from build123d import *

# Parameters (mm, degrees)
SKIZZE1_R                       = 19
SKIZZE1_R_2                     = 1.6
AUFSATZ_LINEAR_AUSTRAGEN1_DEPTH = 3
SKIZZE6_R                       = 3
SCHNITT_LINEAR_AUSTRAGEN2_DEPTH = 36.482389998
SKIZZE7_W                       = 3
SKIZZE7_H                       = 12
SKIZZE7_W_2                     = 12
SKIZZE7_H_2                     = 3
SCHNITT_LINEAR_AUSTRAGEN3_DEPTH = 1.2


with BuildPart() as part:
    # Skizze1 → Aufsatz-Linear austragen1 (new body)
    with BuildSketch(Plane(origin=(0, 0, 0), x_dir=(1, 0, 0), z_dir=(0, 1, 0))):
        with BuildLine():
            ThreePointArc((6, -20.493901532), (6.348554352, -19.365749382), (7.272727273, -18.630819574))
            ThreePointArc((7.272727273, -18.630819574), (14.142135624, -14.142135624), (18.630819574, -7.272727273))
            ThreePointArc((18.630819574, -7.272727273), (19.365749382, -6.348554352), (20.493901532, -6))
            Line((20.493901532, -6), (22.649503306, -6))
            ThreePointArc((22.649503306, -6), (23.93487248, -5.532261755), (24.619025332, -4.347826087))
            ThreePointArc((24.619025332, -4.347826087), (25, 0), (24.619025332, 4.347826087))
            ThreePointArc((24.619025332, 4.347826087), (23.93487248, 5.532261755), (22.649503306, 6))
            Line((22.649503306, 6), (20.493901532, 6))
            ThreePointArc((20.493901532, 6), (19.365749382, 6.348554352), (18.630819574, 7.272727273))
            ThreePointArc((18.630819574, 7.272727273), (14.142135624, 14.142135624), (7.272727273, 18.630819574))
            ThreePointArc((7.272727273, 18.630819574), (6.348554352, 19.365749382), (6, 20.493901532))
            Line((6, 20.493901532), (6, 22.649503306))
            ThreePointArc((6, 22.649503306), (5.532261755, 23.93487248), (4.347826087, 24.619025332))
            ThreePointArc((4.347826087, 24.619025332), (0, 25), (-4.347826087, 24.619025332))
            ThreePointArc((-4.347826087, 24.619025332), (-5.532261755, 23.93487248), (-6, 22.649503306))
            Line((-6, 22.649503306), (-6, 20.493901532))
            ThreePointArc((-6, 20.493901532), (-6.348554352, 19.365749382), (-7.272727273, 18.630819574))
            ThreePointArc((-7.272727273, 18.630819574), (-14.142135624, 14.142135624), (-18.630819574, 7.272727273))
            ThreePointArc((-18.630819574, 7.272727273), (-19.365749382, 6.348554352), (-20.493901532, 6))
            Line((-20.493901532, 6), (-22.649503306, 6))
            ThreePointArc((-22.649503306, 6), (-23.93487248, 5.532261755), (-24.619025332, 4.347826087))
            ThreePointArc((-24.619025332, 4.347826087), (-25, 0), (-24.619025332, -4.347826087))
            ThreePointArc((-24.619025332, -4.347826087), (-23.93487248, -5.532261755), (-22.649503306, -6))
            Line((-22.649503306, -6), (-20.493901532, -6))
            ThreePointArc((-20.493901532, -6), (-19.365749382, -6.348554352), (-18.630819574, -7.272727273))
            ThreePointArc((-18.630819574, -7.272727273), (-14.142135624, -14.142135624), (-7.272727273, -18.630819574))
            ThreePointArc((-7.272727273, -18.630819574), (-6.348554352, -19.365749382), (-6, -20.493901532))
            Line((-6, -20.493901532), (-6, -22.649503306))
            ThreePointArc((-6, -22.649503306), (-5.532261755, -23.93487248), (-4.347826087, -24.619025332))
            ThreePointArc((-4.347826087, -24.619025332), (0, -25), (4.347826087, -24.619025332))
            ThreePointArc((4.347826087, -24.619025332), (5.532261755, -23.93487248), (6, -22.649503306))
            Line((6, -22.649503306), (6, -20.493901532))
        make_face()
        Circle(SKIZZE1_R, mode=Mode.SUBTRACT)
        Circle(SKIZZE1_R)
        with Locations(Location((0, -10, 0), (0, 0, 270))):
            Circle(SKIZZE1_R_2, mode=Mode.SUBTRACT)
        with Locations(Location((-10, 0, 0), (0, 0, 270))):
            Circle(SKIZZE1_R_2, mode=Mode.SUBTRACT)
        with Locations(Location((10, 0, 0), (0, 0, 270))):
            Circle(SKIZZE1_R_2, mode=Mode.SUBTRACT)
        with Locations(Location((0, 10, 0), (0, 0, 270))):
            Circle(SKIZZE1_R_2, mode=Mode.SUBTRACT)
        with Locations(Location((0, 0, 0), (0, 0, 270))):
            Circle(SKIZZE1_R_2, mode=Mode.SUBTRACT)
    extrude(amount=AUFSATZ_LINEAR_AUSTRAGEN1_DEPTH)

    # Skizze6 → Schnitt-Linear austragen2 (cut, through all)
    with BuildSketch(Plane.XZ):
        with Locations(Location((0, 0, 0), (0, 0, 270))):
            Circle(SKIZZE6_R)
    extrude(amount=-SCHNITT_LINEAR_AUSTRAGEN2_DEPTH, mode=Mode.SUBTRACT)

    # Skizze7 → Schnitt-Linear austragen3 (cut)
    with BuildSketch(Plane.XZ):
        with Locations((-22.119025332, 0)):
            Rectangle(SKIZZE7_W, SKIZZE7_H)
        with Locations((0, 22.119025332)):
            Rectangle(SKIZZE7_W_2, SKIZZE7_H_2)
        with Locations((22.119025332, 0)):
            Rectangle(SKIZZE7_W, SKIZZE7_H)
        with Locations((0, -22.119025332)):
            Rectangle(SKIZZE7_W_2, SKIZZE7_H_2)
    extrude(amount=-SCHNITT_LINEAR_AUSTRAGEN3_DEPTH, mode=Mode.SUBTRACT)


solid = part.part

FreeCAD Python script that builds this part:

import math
import FreeCAD as App
import Part
import Sketcher
from FreeCAD import Vector


def add_polygon(sketch, points):
    """Adds a closed chain of lines whose ends are joined by coincident constraints."""
    first, n = sketch.GeometryCount, len(points)
    for a, b in zip(points, points[1:] + points[:1]):
        sketch.addGeometry(Part.LineSegment(App.Vector(*a, 0), App.Vector(*b, 0)), False)
    for i in range(n):
        sketch.addConstraint(Sketcher.Constraint("Coincident", first + i, 2, first + (i + 1) % n, 1))

doc = App.newDocument("Part")
params = doc.addObject("Spreadsheet::Sheet", "Params")
for row, (alias, value) in enumerate([
    ("sketch1_radius", "2 mm"),
    ("sketch1_radius2", "20 mm"),
    ("sketch1_radius3", "25 mm"),
    ("sketch1_diameter", "3.2 mm"),
    ("pad1_length", "3 mm"),
    ("sketch2_diameter", "6 mm"),
    ("sketch3_width", "3 mm"),
    ("sketch3_width2", "12 mm"),
    ("pocket2_length", "1.2 mm"),
], start=1):
    params.set(f"A{row}", alias)
    params.set(f"B{row}", "=" + value)
    params.setAlias(f"B{row}", alias)

body = doc.addObject("PartDesign::Body", "Body")

# Sketch on XZ plane
sketch1 = body.newObject("Sketcher::SketchObject", "Sketch")
sketch1.AttachmentSupport = (doc.getObject("XZ_Plane"), [""])
sketch1.MapMode = "FlatFace"
sketch1.addGeometry(Part.ArcOfCircle(Part.Circle(Vector(8, 20.493902, 0), Vector(0, 0, 1), 2), math.radians(180), math.radians(248.676314)), False)
sketch1.addGeometry(Part.ArcOfCircle(Part.Circle(Vector(0, 0, 0), Vector(0, 0, 1), 20), math.radians(21.323686), math.radians(68.676314)), False)
sketch1.addGeometry(Part.ArcOfCircle(Part.Circle(Vector(20.493902, 8, 0), Vector(0, 0, 1), 2), math.radians(-158.676314), math.radians(-90)), False)
sketch1.addGeometry(Part.LineSegment(Vector(20.493902, 6, 0), Vector(22.649503, 6, 0)), False)
sketch1.addGeometry(Part.ArcOfCircle(Part.Circle(Vector(22.649503, 4, 0), Vector(0, 0, 1), 2), math.radians(10.01541), math.radians(90)), False)
sketch1.addGeometry(Part.ArcOfCircle(Part.Circle(Vector(0, 0, 0), Vector(0, 0, 1), 25), math.radians(-10.01541), math.radians(10.01541)), False)
sketch1.addGeometry(Part.ArcOfCircle(Part.Circle(Vector(22.649503, -4, 0), Vector(0, 0, 1), 2), math.radians(-90), math.radians(-10.01541)), False)
sketch1.addGeometry(Part.LineSegment(Vector(22.649503, -6, 0), Vector(20.493902, -6, 0)), False)
sketch1.addGeometry(Part.ArcOfCircle(Part.Circle(Vector(20.493902, -8, 0), Vector(0, 0, 1), 2), math.radians(90), math.radians(158.676314)), False)
sketch1.addGeometry(Part.ArcOfCircle(Part.Circle(Vector(0, 0, 0), Vector(0, 0, 1), 20), math.radians(-68.676314), math.radians(-21.323686)), False)
sketch1.addGeometry(Part.ArcOfCircle(Part.Circle(Vector(8, -20.493902, 0), Vector(0, 0, 1), 2), math.radians(111.323686), math.radians(180)), False)
sketch1.addGeometry(Part.LineSegment(Vector(6, -20.493902, 0), Vector(6, -22.649503, 0)), False)
sketch1.addGeometry(Part.ArcOfCircle(Part.Circle(Vector(4, -22.649503, 0), Vector(0, 0, 1), 2), math.radians(-79.98459), math.radians(0)), False)
sketch1.addGeometry(Part.ArcOfCircle(Part.Circle(Vector(0, 0, 0), Vector(0, 0, 1), 25), math.radians(-100.01541), math.radians(-79.98459)), False)
sketch1.addGeometry(Part.ArcOfCircle(Part.Circle(Vector(-4, -22.649503, 0), Vector(0, 0, 1), 2), math.radians(180), math.radians(259.98459)), False)
sketch1.addGeometry(Part.LineSegment(Vector(-6, -22.649503, 0), Vector(-6, -20.493902, 0)), False)
sketch1.addGeometry(Part.ArcOfCircle(Part.Circle(Vector(-8, -20.493902, 0), Vector(0, 0, 1), 2), math.radians(0), math.radians(68.676314)), False)
sketch1.addGeometry(Part.ArcOfCircle(Part.Circle(Vector(0, 0, 0), Vector(0, 0, 1), 20), math.radians(-158.676314), math.radians(-111.323686)), False)
sketch1.addGeometry(Part.ArcOfCircle(Part.Circle(Vector(-20.493902, -8, 0), Vector(0, 0, 1), 2), math.radians(21.323686), math.radians(90)), False)
sketch1.addGeometry(Part.LineSegment(Vector(-20.493902, -6, 0), Vector(-22.649503, -6, 0)), False)
sketch1.addGeometry(Part.ArcOfCircle(Part.Circle(Vector(-22.649503, -4, 0), Vector(0, 0, 1), 2), math.radians(-169.98459), math.radians(-90)), False)
sketch1.addGeometry(Part.ArcOfCircle(Part.Circle(Vector(0, 0, 0), Vector(0, 0, 1), 25), math.radians(169.98459), math.radians(190.01541)), False)
sketch1.addGeometry(Part.ArcOfCircle(Part.Circle(Vector(-22.649503, 4, 0), Vector(0, 0, 1), 2), math.radians(90), math.radians(169.98459)), False)
sketch1.addGeometry(Part.LineSegment(Vector(-22.649503, 6, 0), Vector(-20.493902, 6, 0)), False)
sketch1.addGeometry(Part.ArcOfCircle(Part.Circle(Vector(-20.493902, 8, 0), Vector(0, 0, 1), 2), math.radians(-90), math.radians(-21.323686)), False)
sketch1.addGeometry(Part.ArcOfCircle(Part.Circle(Vector(0, 0, 0), Vector(0, 0, 1), 20), math.radians(111.323686), math.radians(158.676314)), False)
sketch1.addGeometry(Part.ArcOfCircle(Part.Circle(Vector(-8, 20.493902, 0), Vector(0, 0, 1), 2), math.radians(-68.676314), math.radians(0)), False)
sketch1.addGeometry(Part.LineSegment(Vector(-6, 20.493902, 0), Vector(-6, 22.649503, 0)), False)
sketch1.addGeometry(Part.ArcOfCircle(Part.Circle(Vector(-4, 22.649503, 0), Vector(0, 0, 1), 2), math.radians(100.01541), math.radians(180)), False)
sketch1.addGeometry(Part.ArcOfCircle(Part.Circle(Vector(0, 0, 0), Vector(0, 0, 1), 25), math.radians(79.98459), math.radians(100.01541)), False)
sketch1.addGeometry(Part.ArcOfCircle(Part.Circle(Vector(4, 22.649503, 0), Vector(0, 0, 1), 2), math.radians(0), math.radians(79.98459)), False)
sketch1.addGeometry(Part.LineSegment(Vector(6, 22.649503, 0), Vector(6, 20.493902, 0)), False)
sketch1.addGeometry(Part.Circle(Vector(0, 10, 0), Vector(0, 0, 1), 1.6), False)
sketch1.addGeometry(Part.Circle(Vector(-10, 0, 0), Vector(0, 0, 1), 1.6), False)
sketch1.addGeometry(Part.Circle(Vector(0, 0, 0), Vector(0, 0, 1), 1.6), False)
sketch1.addGeometry(Part.Circle(Vector(10, 0, 0), Vector(0, 0, 1), 1.6), False)
sketch1.addGeometry(Part.Circle(Vector(0, -10, 0), Vector(0, 0, 1), 1.6), False)
sketch1.addConstraint(Sketcher.Constraint("Tangent", 0, 2, 1, 2))
sketch1.addConstraint(Sketcher.Constraint("Tangent", 1, 1, 2, 1))
sketch1.addConstraint(Sketcher.Constraint("Tangent", 2, 2, 3, 1))
sketch1.addConstraint(Sketcher.Constraint("Tangent", 3, 2, 4, 2))
sketch1.addConstraint(Sketcher.Constraint("Tangent", 4, 1, 5, 2))
sketch1.addConstraint(Sketcher.Constraint("Tangent", 5, 1, 6, 2))
sketch1.addConstraint(Sketcher.Constraint("Tangent", 6, 1, 7, 1))
sketch1.addConstraint(Sketcher.Constraint("Tangent", 7, 2, 8, 1))
sketch1.addConstraint(Sketcher.Constraint("Tangent", 8, 2, 9, 2))
sketch1.addConstraint(Sketcher.Constraint("Tangent", 9, 1, 10, 1))
sketch1.addConstraint(Sketcher.Constraint("Tangent", 10, 2, 11, 1))
sketch1.addConstraint(Sketcher.Constraint("Tangent", 11, 2, 12, 2))
sketch1.addConstraint(Sketcher.Constraint("Tangent", 12, 1, 13, 2))
sketch1.addConstraint(Sketcher.Constraint("Tangent", 13, 1, 14, 2))
sketch1.addConstraint(Sketcher.Constraint("Tangent", 14, 1, 15, 1))
sketch1.addConstraint(Sketcher.Constraint("Tangent", 15, 2, 16, 1))
sketch1.addConstraint(Sketcher.Constraint("Tangent", 16, 2, 17, 2))
sketch1.addConstraint(Sketcher.Constraint("Tangent", 17, 1, 18, 1))
sketch1.addConstraint(Sketcher.Constraint("Tangent", 18, 2, 19, 1))
sketch1.addConstraint(Sketcher.Constraint("Tangent", 19, 2, 20, 2))
sketch1.addConstraint(Sketcher.Constraint("Tangent", 20, 1, 21, 2))
sketch1.addConstraint(Sketcher.Constraint("Tangent", 21, 1, 22, 2))
sketch1.addConstraint(Sketcher.Constraint("Tangent", 22, 1, 23, 1))
sketch1.addConstraint(Sketcher.Constraint("Tangent", 23, 2, 24, 1))
sketch1.addConstraint(Sketcher.Constraint("Tangent", 24, 2, 25, 2))
sketch1.addConstraint(Sketcher.Constraint("Tangent", 25, 1, 26, 1))
sketch1.addConstraint(Sketcher.Constraint("Tangent", 26, 2, 27, 1))
sketch1.addConstraint(Sketcher.Constraint("Tangent", 27, 2, 28, 2))
sketch1.addConstraint(Sketcher.Constraint("Tangent", 28, 1, 29, 2))
sketch1.addConstraint(Sketcher.Constraint("Tangent", 29, 1, 30, 2))
sketch1.addConstraint(Sketcher.Constraint("Tangent", 30, 1, 31, 1))
sketch1.addConstraint(Sketcher.Constraint("Tangent", 31, 2, 0, 1))
sketch1.addConstraint(Sketcher.Constraint("Horizontal", 3))
sketch1.addConstraint(Sketcher.Constraint("Horizontal", 7))
sketch1.addConstraint(Sketcher.Constraint("Vertical", 11))
sketch1.addConstraint(Sketcher.Constraint("Vertical", 15))
sketch1.addConstraint(Sketcher.Constraint("Horizontal", 19))
sketch1.addConstraint(Sketcher.Constraint("Horizontal", 23))
sketch1.addConstraint(Sketcher.Constraint("Vertical", 27))
sketch1.addConstraint(Sketcher.Constraint("Vertical", 31))
sketch1.addConstraint(Sketcher.Constraint("Coincident", 1, 3, -1, 1))
sketch1.addConstraint(Sketcher.Constraint("Coincident", 5, 3, -1, 1))
sketch1.addConstraint(Sketcher.Constraint("Coincident", 9, 3, -1, 1))
sketch1.addConstraint(Sketcher.Constraint("Coincident", 13, 3, -1, 1))
sketch1.addConstraint(Sketcher.Constraint("Coincident", 17, 3, -1, 1))
sketch1.addConstraint(Sketcher.Constraint("Coincident", 21, 3, -1, 1))
sketch1.addConstraint(Sketcher.Constraint("Coincident", 25, 3, -1, 1))
sketch1.addConstraint(Sketcher.Constraint("Coincident", 29, 3, -1, 1))
sketch1.addConstraint(Sketcher.Constraint("Coincident", 34, 3, -1, 1))
sketch1.addConstraint(Sketcher.Constraint("Equal", 0, 2))
sketch1.addConstraint(Sketcher.Constraint("Equal", 2, 4))
sketch1.addConstraint(Sketcher.Constraint("Equal", 4, 6))
sketch1.addConstraint(Sketcher.Constraint("Equal", 6, 8))
sketch1.addConstraint(Sketcher.Constraint("Equal", 1, 9))
sketch1.addConstraint(Sketcher.Constraint("Equal", 8, 10))
sketch1.addConstraint(Sketcher.Constraint("Equal", 10, 12))
sketch1.addConstraint(Sketcher.Constraint("Equal", 5, 13))
sketch1.addConstraint(Sketcher.Constraint("Equal", 12, 14))
sketch1.addConstraint(Sketcher.Constraint("Equal", 14, 16))
sketch1.addConstraint(Sketcher.Constraint("Equal", 9, 17))
sketch1.addConstraint(Sketcher.Constraint("Equal", 16, 18))
sketch1.addConstraint(Sketcher.Constraint("Equal", 18, 20))
sketch1.addConstraint(Sketcher.Constraint("Equal", 13, 21))
sketch1.addConstraint(Sketcher.Constraint("Equal", 20, 22))
sketch1.addConstraint(Sketcher.Constraint("Equal", 22, 24))
sketch1.addConstraint(Sketcher.Constraint("Equal", 17, 25))
sketch1.addConstraint(Sketcher.Constraint("Equal", 24, 26))
sketch1.addConstraint(Sketcher.Constraint("Equal", 26, 28))
sketch1.addConstraint(Sketcher.Constraint("Equal", 21, 29))
sketch1.addConstraint(Sketcher.Constraint("Equal", 28, 30))
sketch1.addConstraint(Sketcher.Constraint("Equal", 32, 33))
sketch1.addConstraint(Sketcher.Constraint("Equal", 33, 34))
sketch1.addConstraint(Sketcher.Constraint("Equal", 34, 35))
sketch1.addConstraint(Sketcher.Constraint("Equal", 35, 36))
sketch1.addConstraint(Sketcher.Constraint("Symmetric", 33, 3, 35, 3, -1, 1))
sketch1.addConstraint(Sketcher.Constraint("Symmetric", 32, 3, 36, 3, -1, 1))
sketch1.addConstraint(Sketcher.Constraint("PointOnObject", 32, 3, -2))
sketch1.addConstraint(Sketcher.Constraint("PointOnObject", 33, 3, -1))
sketch1.addConstraint(Sketcher.Constraint("Horizontal", 12, 3, 14, 3))
sketch1.addConstraint(Sketcher.Constraint("Horizontal", 8, 3, 18, 3))
sketch1.addConstraint(Sketcher.Constraint("Horizontal", 4, 3, 22, 3))
sketch1.addConstraint(Sketcher.Constraint("Horizontal", 0, 3, 26, 3))
sketch1.addConstraint(Sketcher.Constraint("Vertical", 4, 3, 6, 3))
sketch1.addConstraint(Sketcher.Constraint("Vertical", 0, 3, 10, 3))
sketch1.addConstraint(Sketcher.Constraint("Equal", 23, 11))
sketch1.addConstraint(Sketcher.Constraint("Radius", 0, 2.0))
sketch1.addConstraint(Sketcher.Constraint("Radius", 1, 20.0))
sketch1.addConstraint(Sketcher.Constraint("Radius", 5, 25.0))
sketch1.addConstraint(Sketcher.Constraint("Diameter", 32, 3.2))
sketch1.addConstraint(Sketcher.Constraint("DistanceX", -1, 1, 0, 3, 8.0))
sketch1.addConstraint(Sketcher.Constraint("DistanceY", -1, 1, 32, 3, 10.0))
sketch1.addConstraint(Sketcher.Constraint("DistanceX", 33, 3, -1, 1, 10.0))
sketch1.setExpression("Constraints[85]", "Params.sketch1_radius")
sketch1.setExpression("Constraints[86]", "Params.sketch1_radius2")
sketch1.setExpression("Constraints[87]", "Params.sketch1_radius3")
sketch1.setExpression("Constraints[88]", "Params.sketch1_diameter")
pad1 = body.newObject("PartDesign::Pad", "Pad")
pad1.Profile = sketch1
pad1.setExpression("Length", "Params.pad1_length")
pad1.Reversed = True

# Sketch on XZ plane
sketch2 = body.newObject("Sketcher::SketchObject", "Sketch001")
sketch2.AttachmentSupport = (doc.getObject("XZ_Plane"), [""])
sketch2.MapMode = "FlatFace"
sketch2.addGeometry(Part.Circle(Vector(0, 0, 0), Vector(0, 0, 1), 3), False)
sketch2.addConstraint(Sketcher.Constraint("Coincident", 0, 3, -1, 1))
sketch2.addConstraint(Sketcher.Constraint("Diameter", 0, 6.0))
sketch2.setExpression("Constraints[1]", "Params.sketch2_diameter")
pocket1 = body.newObject("PartDesign::Pocket", "Pocket")
pocket1.Profile = sketch2
pocket1.Type = "ThroughAll"

# Sketch on XZ plane
sketch3 = body.newObject("Sketcher::SketchObject", "Sketch002")
sketch3.AttachmentSupport = (doc.getObject("XZ_Plane"), [""])
sketch3.MapMode = "FlatFace"
add_polygon(sketch3, [(-23.619025, 6), (-23.619025, -6), (-20.619025, -6), (-20.619025, 6)])  # lines 0-3
add_polygon(sketch3, [(-6, 23.619025), (-6, 20.619025), (6, 20.619025), (6, 23.619025)])  # lines 4-7
add_polygon(sketch3, [(20.619025, 6), (20.619025, -6), (23.619025, -6), (23.619025, 6)])  # lines 8-11
add_polygon(sketch3, [(-6, -20.619025), (-6, -23.619025), (6, -23.619025), (6, -20.619025)])  # lines 12-15
sketch3.addConstraint(Sketcher.Constraint("Vertical", 0))
sketch3.addConstraint(Sketcher.Constraint("Horizontal", 1))
sketch3.addConstraint(Sketcher.Constraint("Vertical", 2))
sketch3.addConstraint(Sketcher.Constraint("Horizontal", 3))
sketch3.addConstraint(Sketcher.Constraint("Vertical", 4))
sketch3.addConstraint(Sketcher.Constraint("Horizontal", 5))
sketch3.addConstraint(Sketcher.Constraint("Vertical", 6))
sketch3.addConstraint(Sketcher.Constraint("Horizontal", 7))
sketch3.addConstraint(Sketcher.Constraint("Vertical", 8))
sketch3.addConstraint(Sketcher.Constraint("Horizontal", 9))
sketch3.addConstraint(Sketcher.Constraint("Vertical", 10))
sketch3.addConstraint(Sketcher.Constraint("Horizontal", 11))
sketch3.addConstraint(Sketcher.Constraint("Vertical", 12))
sketch3.addConstraint(Sketcher.Constraint("Horizontal", 13))
sketch3.addConstraint(Sketcher.Constraint("Vertical", 14))
sketch3.addConstraint(Sketcher.Constraint("Horizontal", 15))
sketch3.addConstraint(Sketcher.Constraint("Symmetric", 2, 2, 8, 2, -1, 1))
sketch3.addConstraint(Sketcher.Constraint("Symmetric", 0, 2, 10, 2, -1, 1))
sketch3.addConstraint(Sketcher.Constraint("Symmetric", 6, 2, 12, 2, -1, 1))
sketch3.addConstraint(Sketcher.Constraint("Symmetric", 4, 2, 14, 2, -1, 1))
sketch3.addConstraint(Sketcher.Constraint("Horizontal", 1, 2, 8, 2))
sketch3.addConstraint(Sketcher.Constraint("Vertical", 7, 2, 12, 2))
sketch3.addConstraint(Sketcher.Constraint("Equal", 15, 0))
sketch3.addConstraint(Sketcher.Constraint("Equal", 11, 4))
sketch3.addConstraint(Sketcher.Constraint("DistanceX", 1, 1, 1, 2, 3.0))
sketch3.addConstraint(Sketcher.Constraint("DistanceX", 5, 1, 5, 2, 12.0))
sketch3.addConstraint(Sketcher.Constraint("DistanceX", 1, 2, 8, 2, 41.238051))
sketch3.addConstraint(Sketcher.Constraint("DistanceY", -1, 1, 4, 2, 20.619025))
sketch3.setExpression("Constraints[40]", "Params.sketch3_width")
sketch3.setExpression("Constraints[41]", "Params.sketch3_width2")
pocket2 = body.newObject("PartDesign::Pocket", "Pocket001")
pocket2.Profile = sketch3
pocket2.setExpression("Length", "Params.pocket2_length")

doc.recompute()
